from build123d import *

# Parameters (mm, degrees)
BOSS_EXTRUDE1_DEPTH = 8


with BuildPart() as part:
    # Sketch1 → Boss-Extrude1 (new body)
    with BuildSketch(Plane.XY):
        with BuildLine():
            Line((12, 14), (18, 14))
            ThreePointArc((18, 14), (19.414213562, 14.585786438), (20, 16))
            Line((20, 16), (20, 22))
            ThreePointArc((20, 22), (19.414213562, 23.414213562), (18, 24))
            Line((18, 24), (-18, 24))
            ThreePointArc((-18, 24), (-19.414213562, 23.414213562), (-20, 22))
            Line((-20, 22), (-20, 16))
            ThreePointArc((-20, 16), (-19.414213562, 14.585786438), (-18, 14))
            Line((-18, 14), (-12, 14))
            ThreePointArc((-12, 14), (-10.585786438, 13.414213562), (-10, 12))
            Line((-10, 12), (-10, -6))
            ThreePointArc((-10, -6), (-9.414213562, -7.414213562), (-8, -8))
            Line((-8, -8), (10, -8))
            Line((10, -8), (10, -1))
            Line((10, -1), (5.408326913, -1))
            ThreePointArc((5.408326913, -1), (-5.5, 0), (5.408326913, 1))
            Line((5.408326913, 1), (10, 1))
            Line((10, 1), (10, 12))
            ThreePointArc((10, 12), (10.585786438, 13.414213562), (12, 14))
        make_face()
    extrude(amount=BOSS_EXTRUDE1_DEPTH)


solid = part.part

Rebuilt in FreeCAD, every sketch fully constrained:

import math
import FreeCAD as App
import Part
import Sketcher
from FreeCAD import Vector
Q = App.Units.Quantity

doc = App.newDocument("Part")
body = doc.addObject("PartDesign::Body", "Body")

sketch1 = body.newObject("Sketcher::SketchObject", "Sketch")
sketch1.AttachmentSupport = (doc.getObject("XY_Plane"), [""])
sketch1.MapMode = "FlatFace"
sketch1.addGeometry([
    Part.LineSegment(Vector(12, 14, 0), Vector(18, 14, 0)),
    Part.ArcOfCircle(Part.Circle(Vector(18, 16, 0), Vector(0, 0, 1), 2), math.radians(-90), math.radians(0)),
    Part.LineSegment(Vector(20, 16, 0), Vector(20, 22, 0)),
    Part.ArcOfCircle(Part.Circle(Vector(18, 22, 0), Vector(0, 0, 1), 2), math.radians(0), math.radians(90)),
    Part.LineSegment(Vector(18, 24, 0), Vector(-18, 24, 0)),
    Part.ArcOfCircle(Part.Circle(Vector(-18, 22, 0), Vector(0, 0, 1), 2), math.radians(90), math.radians(180)),
    Part.LineSegment(Vector(-20, 22, 0), Vector(-20, 16, 0)),
    Part.ArcOfCircle(Part.Circle(Vector(-18, 16, 0), Vector(0, 0, 1), 2), math.radians(-180), math.radians(-90)),
    Part.LineSegment(Vector(-18, 14, 0), Vector(-12, 14, 0)),
    Part.ArcOfCircle(Part.Circle(Vector(-12, 12, 0), Vector(0, 0, 1), 2), math.radians(0), math.radians(90)),
    Part.LineSegment(Vector(-10, 12, 0), Vector(-10, -6, 0)),
    Part.ArcOfCircle(Part.Circle(Vector(-8, -6, 0), Vector(0, 0, 1), 2), math.radians(-180), math.radians(-90)),
    Part.LineSegment(Vector(-8, -8, 0), Vector(10, -8, 0)),
    Part.LineSegment(Vector(10, -8, 0), Vector(10, -1, 0)),
    Part.LineSegment(Vector(10, -1, 0), Vector(5.4, -1, 0)),
    Part.ArcOfCircle(Part.Circle(Vector(0, 0, 0), Vector(0, 0, 1), 5.5), math.radians(10), math.radians(350)),
    Part.LineSegment(Vector(5.4, 1, 0), Vector(10, 1, 0)),
    Part.LineSegment(Vector(10, 1, 0), Vector(10, 12, 0)),
    Part.ArcOfCircle(Part.Circle(Vector(12, 12, 0), Vector(0, 0, 1), 2), math.radians(90), math.radians(180)),
], False)
sketch1.addConstraint([
    Sketcher.Constraint("Tangent", 0, 2, 1, 1),
    Sketcher.Constraint("Tangent", 1, 2, 2, 1),
    Sketcher.Constraint("Tangent", 2, 2, 3, 1),
    Sketcher.Constraint("Tangent", 3, 2, 4, 1),
    Sketcher.Constraint("Tangent", 4, 2, 5, 1),
    Sketcher.Constraint("Tangent", 5, 2, 6, 1),
    Sketcher.Constraint("Tangent", 6, 2, 7, 1),
    Sketcher.Constraint("Tangent", 7, 2, 8, 1),
    Sketcher.Constraint("Tangent", 8, 2, 9, 2),
    Sketcher.Constraint("Tangent", 9, 1, 10, 1),
    Sketcher.Constraint("Tangent", 10, 2, 11, 1),
    Sketcher.Constraint("Tangent", 11, 2, 12, 1),
    Sketcher.Constraint("Coincident", 12, 2, 13, 1),
    Sketcher.Constraint("Coincident", 13, 2, 14, 1),
    Sketcher.Constraint("Coincident", 14, 2, 15, 2),
    Sketcher.Constraint("Coincident", 15, 1, 16, 1),
    Sketcher.Constraint("Coincident", 16, 2, 17, 1),
    Sketcher.Constraint("Tangent", 17, 2, 18, 2),
    Sketcher.Constraint("Tangent", 18, 1, 0, 1),
    Sketcher.Constraint("Horizontal", 0),
    Sketcher.Constraint("Vertical", 2),
    Sketcher.Constraint("Horizontal", 4),
    Sketcher.Constraint("Vertical", 6),
    Sketcher.Constraint("Horizontal", 8),
    Sketcher.Constraint("Vertical", 10),
    Sketcher.Constraint("Horizontal", 12),
    Sketcher.Constraint("Vertical", 13),
    Sketcher.Constraint("Horizontal", 14),
    Sketcher.Constraint("Horizontal", 16),
    Sketcher.Constraint("Vertical", 17),
    Sketcher.Constraint("Coincident", 15, 3, -1, 1),
    Sketcher.Constraint("Equal", 1, 3),
    Sketcher.Constraint("Equal", 3, 5),
    Sketcher.Constraint("Equal", 5, 7),
    Sketcher.Constraint("Equal", 7, 9),
    Sketcher.Constraint("Equal", 9, 11),
    Sketcher.Constraint("Equal", 11, 18),
    Sketcher.Constraint("Symmetric", 1, 3, 7, 3, -2),
    Sketcher.Constraint("Symmetric", 13, 2, 16, 2, -1),
    Sketcher.Constraint("Equal", 0, 8),
    Sketcher.Constraint("Equal", 8, 2),
    Sketcher.Constraint("Equal", 12, 10),
    Sketcher.Constraint("Radius", 1, Q("2 mm")),
    Sketcher.Constraint("Radius", 15, Q("5.5 mm")),
    Sketcher.Constraint("DistanceX", 0, 1, 0, 2, Q("6 mm")),
    Sketcher.Constraint("DistanceX", 4, 2, 4, 1, Q("36 mm")),
    Sketcher.Constraint("DistanceY", 13, 1, 13, 2, Q("7 mm")),
    Sketcher.Constraint("DistanceY", 17, 1, 17, 2, Q("11 mm")),
])
pad1 = body.newObject("PartDesign::Pad", "Pad")
pad1.Profile = sketch1
pad1.Length = 8

doc.recompute()
